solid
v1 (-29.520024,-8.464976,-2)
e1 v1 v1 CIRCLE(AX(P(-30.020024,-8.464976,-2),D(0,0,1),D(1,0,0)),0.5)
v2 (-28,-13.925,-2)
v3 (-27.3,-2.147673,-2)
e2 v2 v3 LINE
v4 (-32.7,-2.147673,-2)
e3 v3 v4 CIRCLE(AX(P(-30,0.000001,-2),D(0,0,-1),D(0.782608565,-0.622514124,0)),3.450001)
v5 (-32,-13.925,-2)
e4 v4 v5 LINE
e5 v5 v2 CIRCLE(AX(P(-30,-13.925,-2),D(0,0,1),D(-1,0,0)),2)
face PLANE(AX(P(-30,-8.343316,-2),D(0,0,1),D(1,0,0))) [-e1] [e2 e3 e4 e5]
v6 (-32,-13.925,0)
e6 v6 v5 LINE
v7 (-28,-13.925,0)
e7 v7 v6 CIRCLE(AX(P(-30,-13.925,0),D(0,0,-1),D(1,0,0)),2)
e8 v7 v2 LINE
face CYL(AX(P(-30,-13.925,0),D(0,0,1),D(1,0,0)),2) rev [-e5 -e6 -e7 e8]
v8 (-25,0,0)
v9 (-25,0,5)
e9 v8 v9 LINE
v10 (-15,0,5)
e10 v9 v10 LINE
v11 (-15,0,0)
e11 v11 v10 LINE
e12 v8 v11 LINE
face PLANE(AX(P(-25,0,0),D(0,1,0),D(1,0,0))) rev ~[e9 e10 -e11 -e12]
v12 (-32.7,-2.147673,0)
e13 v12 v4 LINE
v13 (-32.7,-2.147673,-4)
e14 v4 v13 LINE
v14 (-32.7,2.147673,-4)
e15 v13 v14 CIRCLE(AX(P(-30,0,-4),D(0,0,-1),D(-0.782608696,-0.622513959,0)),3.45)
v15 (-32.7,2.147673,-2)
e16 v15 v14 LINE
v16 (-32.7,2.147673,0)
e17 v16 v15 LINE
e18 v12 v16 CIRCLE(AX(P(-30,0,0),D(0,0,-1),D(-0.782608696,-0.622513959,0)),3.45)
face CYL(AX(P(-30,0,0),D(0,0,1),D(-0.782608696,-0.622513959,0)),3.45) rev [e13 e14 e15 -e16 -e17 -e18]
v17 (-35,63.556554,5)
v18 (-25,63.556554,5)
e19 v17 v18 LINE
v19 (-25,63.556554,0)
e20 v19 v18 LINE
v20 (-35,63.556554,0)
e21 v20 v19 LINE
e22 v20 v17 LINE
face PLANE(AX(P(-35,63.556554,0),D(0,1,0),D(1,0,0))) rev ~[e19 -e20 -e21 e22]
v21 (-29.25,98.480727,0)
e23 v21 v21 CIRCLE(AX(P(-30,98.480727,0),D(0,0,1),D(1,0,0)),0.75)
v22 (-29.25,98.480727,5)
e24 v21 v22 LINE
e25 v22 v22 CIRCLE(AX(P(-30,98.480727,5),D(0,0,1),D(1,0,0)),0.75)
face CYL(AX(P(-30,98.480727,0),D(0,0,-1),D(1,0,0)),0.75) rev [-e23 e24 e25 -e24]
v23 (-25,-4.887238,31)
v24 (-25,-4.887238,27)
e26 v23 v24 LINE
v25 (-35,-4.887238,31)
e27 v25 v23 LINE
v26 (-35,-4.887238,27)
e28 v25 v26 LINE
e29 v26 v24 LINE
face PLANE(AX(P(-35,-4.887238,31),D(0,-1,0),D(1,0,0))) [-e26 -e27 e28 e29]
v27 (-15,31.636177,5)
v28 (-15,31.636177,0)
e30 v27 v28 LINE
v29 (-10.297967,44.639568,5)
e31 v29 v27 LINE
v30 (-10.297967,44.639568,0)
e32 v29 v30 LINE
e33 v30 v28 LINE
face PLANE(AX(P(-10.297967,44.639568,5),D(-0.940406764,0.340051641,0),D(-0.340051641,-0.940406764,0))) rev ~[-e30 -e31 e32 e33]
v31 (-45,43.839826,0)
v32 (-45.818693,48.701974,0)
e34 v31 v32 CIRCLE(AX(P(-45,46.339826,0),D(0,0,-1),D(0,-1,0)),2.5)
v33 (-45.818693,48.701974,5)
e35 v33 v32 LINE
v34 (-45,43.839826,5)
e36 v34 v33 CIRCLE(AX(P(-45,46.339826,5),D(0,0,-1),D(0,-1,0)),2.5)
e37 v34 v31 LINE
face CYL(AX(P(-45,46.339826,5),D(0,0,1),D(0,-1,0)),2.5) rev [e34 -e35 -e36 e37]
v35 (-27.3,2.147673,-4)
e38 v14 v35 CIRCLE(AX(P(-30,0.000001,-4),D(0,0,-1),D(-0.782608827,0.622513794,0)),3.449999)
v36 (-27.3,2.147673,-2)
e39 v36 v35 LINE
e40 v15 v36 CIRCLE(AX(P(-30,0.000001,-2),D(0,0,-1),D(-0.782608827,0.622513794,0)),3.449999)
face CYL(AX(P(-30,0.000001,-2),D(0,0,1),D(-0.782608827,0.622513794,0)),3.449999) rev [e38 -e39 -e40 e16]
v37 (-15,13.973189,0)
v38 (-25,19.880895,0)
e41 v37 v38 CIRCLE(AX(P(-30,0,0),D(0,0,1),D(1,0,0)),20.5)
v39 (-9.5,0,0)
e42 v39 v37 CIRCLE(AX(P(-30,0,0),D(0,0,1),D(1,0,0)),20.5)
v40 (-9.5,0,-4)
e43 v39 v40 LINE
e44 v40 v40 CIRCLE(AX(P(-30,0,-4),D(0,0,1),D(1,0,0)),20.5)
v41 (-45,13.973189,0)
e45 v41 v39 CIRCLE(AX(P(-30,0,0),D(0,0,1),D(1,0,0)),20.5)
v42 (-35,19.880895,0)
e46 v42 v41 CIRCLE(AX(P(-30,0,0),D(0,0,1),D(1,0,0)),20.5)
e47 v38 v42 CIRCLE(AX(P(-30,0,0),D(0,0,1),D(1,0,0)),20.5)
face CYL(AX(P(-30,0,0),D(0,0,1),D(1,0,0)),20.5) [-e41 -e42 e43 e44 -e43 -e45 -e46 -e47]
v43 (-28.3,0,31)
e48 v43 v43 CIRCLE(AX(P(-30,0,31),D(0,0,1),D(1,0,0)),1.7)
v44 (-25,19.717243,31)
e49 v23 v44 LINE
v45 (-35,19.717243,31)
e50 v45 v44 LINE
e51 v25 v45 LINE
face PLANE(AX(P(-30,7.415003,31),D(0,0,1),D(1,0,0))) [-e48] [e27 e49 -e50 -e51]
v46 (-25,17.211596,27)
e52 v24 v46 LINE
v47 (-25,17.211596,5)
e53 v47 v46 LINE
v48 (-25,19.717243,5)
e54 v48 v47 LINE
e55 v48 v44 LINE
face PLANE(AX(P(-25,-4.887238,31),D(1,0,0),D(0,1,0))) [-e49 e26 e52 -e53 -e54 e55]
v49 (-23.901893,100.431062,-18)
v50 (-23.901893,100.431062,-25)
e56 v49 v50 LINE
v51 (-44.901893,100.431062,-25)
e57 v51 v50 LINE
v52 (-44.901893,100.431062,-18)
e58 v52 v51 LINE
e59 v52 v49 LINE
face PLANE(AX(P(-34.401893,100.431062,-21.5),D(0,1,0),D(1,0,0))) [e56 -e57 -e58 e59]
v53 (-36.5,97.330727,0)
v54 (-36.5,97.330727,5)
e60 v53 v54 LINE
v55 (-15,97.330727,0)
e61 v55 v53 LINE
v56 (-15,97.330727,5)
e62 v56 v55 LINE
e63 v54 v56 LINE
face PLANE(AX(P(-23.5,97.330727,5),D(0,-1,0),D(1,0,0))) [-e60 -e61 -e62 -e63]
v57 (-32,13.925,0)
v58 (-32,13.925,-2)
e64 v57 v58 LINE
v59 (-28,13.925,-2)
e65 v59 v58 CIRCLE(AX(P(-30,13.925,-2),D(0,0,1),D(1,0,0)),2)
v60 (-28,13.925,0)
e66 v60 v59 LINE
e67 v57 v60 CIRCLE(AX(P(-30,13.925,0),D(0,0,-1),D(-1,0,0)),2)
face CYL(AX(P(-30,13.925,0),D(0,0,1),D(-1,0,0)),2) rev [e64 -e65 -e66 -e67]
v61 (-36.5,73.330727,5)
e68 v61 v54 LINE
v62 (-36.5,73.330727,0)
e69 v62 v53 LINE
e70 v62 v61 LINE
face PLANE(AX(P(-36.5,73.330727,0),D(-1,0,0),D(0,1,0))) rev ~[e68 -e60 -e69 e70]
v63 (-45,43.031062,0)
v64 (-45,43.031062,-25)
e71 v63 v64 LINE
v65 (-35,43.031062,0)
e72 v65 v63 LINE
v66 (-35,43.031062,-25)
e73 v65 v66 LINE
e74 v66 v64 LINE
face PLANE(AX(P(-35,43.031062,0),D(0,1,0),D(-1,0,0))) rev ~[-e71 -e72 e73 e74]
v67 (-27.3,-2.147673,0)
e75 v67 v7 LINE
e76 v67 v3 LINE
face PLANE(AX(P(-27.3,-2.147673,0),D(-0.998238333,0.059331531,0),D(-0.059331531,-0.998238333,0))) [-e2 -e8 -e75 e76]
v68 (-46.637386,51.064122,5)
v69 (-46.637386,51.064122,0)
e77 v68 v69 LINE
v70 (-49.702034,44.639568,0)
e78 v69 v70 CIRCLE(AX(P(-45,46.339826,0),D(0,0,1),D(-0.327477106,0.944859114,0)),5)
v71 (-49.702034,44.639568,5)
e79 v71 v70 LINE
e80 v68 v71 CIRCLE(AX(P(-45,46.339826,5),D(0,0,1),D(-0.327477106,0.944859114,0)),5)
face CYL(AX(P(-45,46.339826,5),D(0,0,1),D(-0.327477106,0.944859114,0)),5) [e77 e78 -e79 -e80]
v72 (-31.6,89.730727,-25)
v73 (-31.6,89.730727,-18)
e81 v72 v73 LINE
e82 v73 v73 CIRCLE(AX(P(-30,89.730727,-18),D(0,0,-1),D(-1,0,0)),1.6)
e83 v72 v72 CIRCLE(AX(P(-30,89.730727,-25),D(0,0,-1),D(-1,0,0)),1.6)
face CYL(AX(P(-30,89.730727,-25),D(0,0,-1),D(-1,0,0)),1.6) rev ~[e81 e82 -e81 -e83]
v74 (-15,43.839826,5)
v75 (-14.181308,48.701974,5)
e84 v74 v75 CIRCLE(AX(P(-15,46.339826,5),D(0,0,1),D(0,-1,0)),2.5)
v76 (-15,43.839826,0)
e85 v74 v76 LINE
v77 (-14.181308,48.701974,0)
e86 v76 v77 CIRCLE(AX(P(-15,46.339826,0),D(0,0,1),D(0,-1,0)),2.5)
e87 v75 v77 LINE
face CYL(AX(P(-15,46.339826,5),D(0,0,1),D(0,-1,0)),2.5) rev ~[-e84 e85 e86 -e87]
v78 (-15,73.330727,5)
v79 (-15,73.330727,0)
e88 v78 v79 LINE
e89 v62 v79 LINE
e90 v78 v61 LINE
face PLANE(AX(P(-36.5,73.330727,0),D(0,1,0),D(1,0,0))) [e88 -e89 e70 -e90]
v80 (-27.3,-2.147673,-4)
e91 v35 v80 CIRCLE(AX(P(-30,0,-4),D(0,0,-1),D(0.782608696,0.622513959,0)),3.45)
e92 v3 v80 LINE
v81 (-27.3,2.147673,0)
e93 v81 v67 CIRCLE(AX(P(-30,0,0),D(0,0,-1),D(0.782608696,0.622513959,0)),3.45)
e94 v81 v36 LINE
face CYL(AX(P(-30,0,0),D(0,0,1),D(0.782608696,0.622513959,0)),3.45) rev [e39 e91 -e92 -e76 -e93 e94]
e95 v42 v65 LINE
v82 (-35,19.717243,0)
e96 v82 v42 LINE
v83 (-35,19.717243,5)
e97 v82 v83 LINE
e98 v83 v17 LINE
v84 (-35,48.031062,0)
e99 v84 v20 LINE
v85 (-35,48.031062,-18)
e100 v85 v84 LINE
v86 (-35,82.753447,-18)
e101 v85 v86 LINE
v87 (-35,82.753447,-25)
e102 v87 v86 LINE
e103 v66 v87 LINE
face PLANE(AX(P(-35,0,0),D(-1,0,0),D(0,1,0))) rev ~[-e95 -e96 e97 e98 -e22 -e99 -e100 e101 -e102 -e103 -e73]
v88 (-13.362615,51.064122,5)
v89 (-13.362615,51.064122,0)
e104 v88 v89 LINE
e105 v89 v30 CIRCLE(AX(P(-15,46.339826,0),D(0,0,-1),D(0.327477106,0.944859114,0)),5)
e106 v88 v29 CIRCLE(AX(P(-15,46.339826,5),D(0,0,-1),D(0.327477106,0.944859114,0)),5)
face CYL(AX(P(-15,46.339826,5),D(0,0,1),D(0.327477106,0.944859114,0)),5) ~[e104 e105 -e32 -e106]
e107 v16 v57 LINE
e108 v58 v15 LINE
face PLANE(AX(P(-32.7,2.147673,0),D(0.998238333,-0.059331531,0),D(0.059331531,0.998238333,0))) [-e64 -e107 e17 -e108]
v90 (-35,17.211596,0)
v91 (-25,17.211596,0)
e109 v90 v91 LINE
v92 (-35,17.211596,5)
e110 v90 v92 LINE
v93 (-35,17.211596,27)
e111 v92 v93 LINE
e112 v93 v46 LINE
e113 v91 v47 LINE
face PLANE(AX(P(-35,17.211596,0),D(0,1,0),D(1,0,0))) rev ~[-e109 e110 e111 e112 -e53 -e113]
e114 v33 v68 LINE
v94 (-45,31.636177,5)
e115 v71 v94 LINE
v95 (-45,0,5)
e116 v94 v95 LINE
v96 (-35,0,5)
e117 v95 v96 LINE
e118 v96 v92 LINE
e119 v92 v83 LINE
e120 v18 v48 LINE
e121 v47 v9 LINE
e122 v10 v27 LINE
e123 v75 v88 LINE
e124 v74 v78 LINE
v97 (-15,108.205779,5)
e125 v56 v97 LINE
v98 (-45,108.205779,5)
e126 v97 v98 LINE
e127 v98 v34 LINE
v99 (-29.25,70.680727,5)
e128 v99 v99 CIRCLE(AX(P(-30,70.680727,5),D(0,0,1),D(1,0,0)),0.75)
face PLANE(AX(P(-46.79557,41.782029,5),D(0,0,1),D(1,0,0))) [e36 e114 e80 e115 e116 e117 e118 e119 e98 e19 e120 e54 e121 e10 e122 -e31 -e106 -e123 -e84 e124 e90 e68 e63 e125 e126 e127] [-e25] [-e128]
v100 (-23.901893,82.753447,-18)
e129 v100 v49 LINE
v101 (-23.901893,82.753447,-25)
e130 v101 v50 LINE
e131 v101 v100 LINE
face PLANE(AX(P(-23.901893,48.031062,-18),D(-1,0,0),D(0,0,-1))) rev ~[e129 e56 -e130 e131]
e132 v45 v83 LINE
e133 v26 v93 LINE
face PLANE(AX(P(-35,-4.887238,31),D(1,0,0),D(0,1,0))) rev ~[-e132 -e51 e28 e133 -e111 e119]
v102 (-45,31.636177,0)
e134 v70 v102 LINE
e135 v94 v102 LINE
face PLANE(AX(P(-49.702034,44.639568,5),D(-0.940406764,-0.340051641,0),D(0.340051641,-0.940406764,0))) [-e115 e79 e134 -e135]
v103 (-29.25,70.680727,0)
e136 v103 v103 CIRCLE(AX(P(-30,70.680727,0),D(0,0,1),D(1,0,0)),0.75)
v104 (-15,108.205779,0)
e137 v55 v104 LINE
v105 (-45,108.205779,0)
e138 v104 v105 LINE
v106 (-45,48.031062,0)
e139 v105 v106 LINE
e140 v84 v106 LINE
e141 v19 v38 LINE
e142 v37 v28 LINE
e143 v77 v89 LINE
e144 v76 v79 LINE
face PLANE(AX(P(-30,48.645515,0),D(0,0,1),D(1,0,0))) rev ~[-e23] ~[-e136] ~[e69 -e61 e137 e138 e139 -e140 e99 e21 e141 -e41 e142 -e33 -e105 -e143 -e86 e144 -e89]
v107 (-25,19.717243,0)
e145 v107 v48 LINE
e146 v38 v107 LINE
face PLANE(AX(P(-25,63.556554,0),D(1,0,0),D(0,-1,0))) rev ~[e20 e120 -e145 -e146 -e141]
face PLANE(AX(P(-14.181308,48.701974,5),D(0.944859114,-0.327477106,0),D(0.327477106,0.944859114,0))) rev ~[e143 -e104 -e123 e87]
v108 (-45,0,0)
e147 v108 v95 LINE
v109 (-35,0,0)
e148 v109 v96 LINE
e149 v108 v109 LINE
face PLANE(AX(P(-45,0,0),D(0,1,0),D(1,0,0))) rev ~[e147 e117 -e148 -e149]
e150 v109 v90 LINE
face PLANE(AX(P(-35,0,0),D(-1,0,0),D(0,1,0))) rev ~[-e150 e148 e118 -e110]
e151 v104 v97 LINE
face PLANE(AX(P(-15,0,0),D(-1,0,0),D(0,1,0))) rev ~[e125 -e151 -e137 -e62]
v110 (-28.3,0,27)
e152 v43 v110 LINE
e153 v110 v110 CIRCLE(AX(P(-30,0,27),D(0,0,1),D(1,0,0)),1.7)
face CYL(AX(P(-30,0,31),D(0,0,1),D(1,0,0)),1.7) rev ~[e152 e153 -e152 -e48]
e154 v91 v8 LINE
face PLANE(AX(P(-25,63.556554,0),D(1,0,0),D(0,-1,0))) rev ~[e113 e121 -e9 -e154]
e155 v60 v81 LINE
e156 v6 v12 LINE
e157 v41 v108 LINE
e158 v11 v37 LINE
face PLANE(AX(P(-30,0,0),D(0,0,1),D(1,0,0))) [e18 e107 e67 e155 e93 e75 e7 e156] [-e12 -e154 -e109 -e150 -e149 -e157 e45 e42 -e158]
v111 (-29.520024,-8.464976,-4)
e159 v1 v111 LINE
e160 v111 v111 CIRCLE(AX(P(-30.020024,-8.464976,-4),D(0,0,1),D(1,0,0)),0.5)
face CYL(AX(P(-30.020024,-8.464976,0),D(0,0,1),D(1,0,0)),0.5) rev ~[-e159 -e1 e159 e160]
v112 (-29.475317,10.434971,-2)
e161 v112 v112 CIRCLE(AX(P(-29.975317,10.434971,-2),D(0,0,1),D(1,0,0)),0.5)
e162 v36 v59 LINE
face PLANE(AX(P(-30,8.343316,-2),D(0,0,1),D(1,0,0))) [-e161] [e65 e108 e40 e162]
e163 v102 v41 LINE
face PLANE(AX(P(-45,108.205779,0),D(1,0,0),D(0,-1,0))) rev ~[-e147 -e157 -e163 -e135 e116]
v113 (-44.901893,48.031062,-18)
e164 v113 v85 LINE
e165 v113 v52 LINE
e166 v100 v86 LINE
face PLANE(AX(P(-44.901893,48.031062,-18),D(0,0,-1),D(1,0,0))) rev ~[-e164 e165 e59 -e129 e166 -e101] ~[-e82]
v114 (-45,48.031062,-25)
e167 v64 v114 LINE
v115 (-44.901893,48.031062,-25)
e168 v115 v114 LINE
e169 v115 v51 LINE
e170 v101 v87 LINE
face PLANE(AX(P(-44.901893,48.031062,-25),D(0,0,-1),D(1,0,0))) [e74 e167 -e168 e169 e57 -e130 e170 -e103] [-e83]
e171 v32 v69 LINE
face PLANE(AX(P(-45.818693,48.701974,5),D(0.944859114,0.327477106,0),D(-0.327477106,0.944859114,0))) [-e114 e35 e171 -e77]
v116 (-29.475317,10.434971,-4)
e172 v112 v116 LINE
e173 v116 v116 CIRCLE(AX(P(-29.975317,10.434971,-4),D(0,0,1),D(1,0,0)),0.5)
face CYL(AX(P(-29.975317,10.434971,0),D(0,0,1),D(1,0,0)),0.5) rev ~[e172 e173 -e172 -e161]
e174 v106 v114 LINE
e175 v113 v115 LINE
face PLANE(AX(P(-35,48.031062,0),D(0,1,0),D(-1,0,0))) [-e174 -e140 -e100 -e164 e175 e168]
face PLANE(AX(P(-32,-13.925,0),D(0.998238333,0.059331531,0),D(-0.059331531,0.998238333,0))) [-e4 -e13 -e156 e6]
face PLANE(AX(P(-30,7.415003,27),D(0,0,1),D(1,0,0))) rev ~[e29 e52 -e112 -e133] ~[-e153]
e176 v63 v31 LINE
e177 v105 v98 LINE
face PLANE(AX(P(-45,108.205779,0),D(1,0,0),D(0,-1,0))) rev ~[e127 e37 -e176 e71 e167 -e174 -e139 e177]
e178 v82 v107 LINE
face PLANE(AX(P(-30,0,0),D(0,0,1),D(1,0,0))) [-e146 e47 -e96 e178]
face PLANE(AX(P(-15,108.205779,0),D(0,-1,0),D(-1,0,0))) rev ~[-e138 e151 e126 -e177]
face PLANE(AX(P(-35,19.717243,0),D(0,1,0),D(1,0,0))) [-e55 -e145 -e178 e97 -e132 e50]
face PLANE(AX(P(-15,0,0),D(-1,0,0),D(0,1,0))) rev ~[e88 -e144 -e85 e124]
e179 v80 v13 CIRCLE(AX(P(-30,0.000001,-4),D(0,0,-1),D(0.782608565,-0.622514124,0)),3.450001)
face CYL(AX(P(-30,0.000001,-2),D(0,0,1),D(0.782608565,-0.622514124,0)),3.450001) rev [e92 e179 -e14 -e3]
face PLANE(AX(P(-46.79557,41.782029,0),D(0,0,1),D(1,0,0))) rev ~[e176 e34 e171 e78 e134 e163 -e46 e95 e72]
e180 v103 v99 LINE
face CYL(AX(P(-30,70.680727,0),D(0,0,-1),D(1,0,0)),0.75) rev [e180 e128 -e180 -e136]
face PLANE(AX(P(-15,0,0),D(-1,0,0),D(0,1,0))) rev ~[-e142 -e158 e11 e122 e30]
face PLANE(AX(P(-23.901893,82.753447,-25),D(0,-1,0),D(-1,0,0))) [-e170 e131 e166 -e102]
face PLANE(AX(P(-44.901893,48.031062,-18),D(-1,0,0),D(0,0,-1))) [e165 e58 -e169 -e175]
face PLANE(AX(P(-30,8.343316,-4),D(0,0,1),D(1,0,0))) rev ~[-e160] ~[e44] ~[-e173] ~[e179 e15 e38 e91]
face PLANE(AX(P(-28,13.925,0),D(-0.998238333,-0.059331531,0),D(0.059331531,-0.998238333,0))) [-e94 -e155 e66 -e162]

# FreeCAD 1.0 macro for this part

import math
import FreeCAD as App
import Part
import Sketcher

V = App.Vector

doc = App.newDocument("Part")
body = doc.addObject("PartDesign::Body", "Body")

sketch1 = body.newObject("Sketcher::SketchObject", "Sketch")
sketch1.AttachmentSupport = (doc.getObject("XY_Plane"), [""])
sketch1.MapMode = "FlatFace"
sketch1.addGeometry(Part.Circle(V(-30, 0, 0), V(0, 0, 1), 20.5), False)
sketch1.addGeometry(Part.ArcOfCircle(Part.Circle(V(-30, -13.925, 0), V(0, 0, 1), 2), math.radians(180), math.radians(360)), False)
sketch1.addGeometry(Part.LineSegment(V(-32, -13.925, 0), V(-32.7, -2.147673, 0)), False)
sketch1.addGeometry(Part.ArcOfCircle(Part.Circle(V(-30, 0, 0), V(0, 0, 1), 3.45), math.radians(141.50005), math.radians(218.49995)), False)
sketch1.addGeometry(Part.LineSegment(V(-32.7, 2.147673, 0), V(-32, 13.925, 0)), False)
sketch1.addGeometry(Part.ArcOfCircle(Part.Circle(V(-30, 13.925, 0), V(0, 0, 1), 2), math.radians(0), math.radians(180)), False)
sketch1.addGeometry(Part.LineSegment(V(-28, 13.925, 0), V(-27.3, 2.147673, 0)), False)
sketch1.addGeometry(Part.ArcOfCircle(Part.Circle(V(-30, 0, 0), V(0, 0, 1), 3.45), math.radians(-38.49995), math.radians(38.49995)), False)
sketch1.addGeometry(Part.LineSegment(V(-27.3, -2.147673, 0), V(-28, -13.925, 0)), False)
sketch1.addConstraint(Sketcher.Constraint("Coincident", 1, 1, 2, 1))
sketch1.addConstraint(Sketcher.Constraint("Coincident", 2, 2, 3, 2))
sketch1.addConstraint(Sketcher.Constraint("Coincident", 3, 1, 4, 1))
sketch1.addConstraint(Sketcher.Constraint("Coincident", 4, 2, 5, 2))
sketch1.addConstraint(Sketcher.Constraint("Coincident", 5, 1, 6, 1))
sketch1.addConstraint(Sketcher.Constraint("Coincident", 6, 2, 7, 2))
sketch1.addConstraint(Sketcher.Constraint("Coincident", 7, 1, 8, 1))
sketch1.addConstraint(Sketcher.Constraint("Coincident", 8, 2, 1, 2))
sketch1.addConstraint(Sketcher.Constraint("Coincident", 3, 3, 0, 3))
sketch1.addConstraint(Sketcher.Constraint("Coincident", 7, 3, 0, 3))
sketch1.addConstraint(Sketcher.Constraint("Equal", 1, 5))
sketch1.addConstraint(Sketcher.Constraint("Equal", 3, 7))
sketch1.addConstraint(Sketcher.Constraint("Symmetric", 1, 3, 5, 3, -1))
sketch1.addConstraint(Sketcher.Constraint("Symmetric", 2, 2, 3, 1, -1))
sketch1.addConstraint(Sketcher.Constraint("Parallel", 2, 6))
sketch1.addConstraint(Sketcher.Constraint("Parallel", 4, 8))
sketch1.addConstraint(Sketcher.Constraint("Horizontal", 5, 3, 4, 2))
sketch1.addConstraint(Sketcher.Constraint("Horizontal", 4, 2, 5, 1))
sketch1.addConstraint(Sketcher.Constraint("Horizontal", 3, 1, 6, 2))
sketch1.addConstraint(Sketcher.Constraint("Horizontal", 2, 2, 7, 1))
sketch1.addConstraint(Sketcher.Constraint("Horizontal", 1, 1, 8, 2))
sketch1.addConstraint(Sketcher.Constraint("Diameter", 0, 41.0))
sketch1.addConstraint(Sketcher.Constraint("Radius", 1, 2.0))
sketch1.addConstraint(Sketcher.Constraint("Radius", 3, 3.45))
sketch1.addConstraint(Sketcher.Constraint("DistanceX", 0, 3, -1, 1, 30.0))
sketch1.addConstraint(Sketcher.Constraint("DistanceX", 2, 2, -1, 1, 32.7))
sketch1.addConstraint(Sketcher.Constraint("DistanceY", 1, 3, 5, 3, 27.85))
pad1 = body.newObject("PartDesign::Pad", "Pad")
pad1.Profile = sketch1
pad1.Length = 4
pad1.Reversed = True

sketch2 = body.newObject("Sketcher::SketchObject", "Sketch001")
sketch2.AttachmentSupport = (doc.getObject("XY_Plane"), [""])
sketch2.MapMode = "FlatFace"
sketch2.AttachmentOffset = App.Placement(V(0, 0, -2), App.Rotation())
sketch2.addGeometry(Part.LineSegment(V(-32.7, 2.147673, 0), V(-32, 13.925, 0)), False)
sketch2.addGeometry(Part.ArcOfCircle(Part.Circle(V(-30, 13.925, 0), V(0, 0, 1), 2), math.radians(0), math.radians(180)), False)
sketch2.addGeometry(Part.LineSegment(V(-28, 13.925, 0), V(-27.3, 2.147673, 0)), False)
sketch2.addGeometry(Part.ArcOfCircle(Part.Circle(V(-30, 0.000001, 0), V(0, 0, 1), 3.449999), math.radians(38.499938), math.radians(141.500062)), False)
sketch2.addGeometry(Part.LineSegment(V(-32, -13.925, 0), V(-32.7, -2.147673, 0)), False)
sketch2.addGeometry(Part.ArcOfCircle(Part.Circle(V(-30, 0.000001, 0), V(0, 0, 1), 3.450001), math.radians(-141.500038), math.radians(-38.499962)), False)
sketch2.addGeometry(Part.LineSegment(V(-27.3, -2.147673, 0), V(-28, -13.925, 0)), False)
sketch2.addGeometry(Part.ArcOfCircle(Part.Circle(V(-30, -13.925, 0), V(0, 0, 1), 2), math.radians(180), math.radians(360)), False)
sketch2.addConstraint(Sketcher.Constraint("Coincident", 0, 2, 1, 2))
sketch2.addConstraint(Sketcher.Constraint("Coincident", 1, 1, 2, 1))
sketch2.addConstraint(Sketcher.Constraint("Coincident", 2, 2, 3, 1))
sketch2.addConstraint(Sketcher.Constraint("Coincident", 3, 2, 0, 1))
sketch2.addConstraint(Sketcher.Constraint("Coincident", 4, 2, 5, 1))
sketch2.addConstraint(Sketcher.Constraint("Coincident", 5, 2, 6, 1))
sketch2.addConstraint(Sketcher.Constraint("Coincident", 6, 2, 7, 2))
sketch2.addConstraint(Sketcher.Constraint("Coincident", 7, 1, 4, 1))
sketch2.addConstraint(Sketcher.Constraint("Coincident", 5, 3, 3, 3))
sketch2.addConstraint(Sketcher.Constraint("Equal", 3, 5))
sketch2.addConstraint(Sketcher.Constraint("Equal", 1, 7))
sketch2.addConstraint(Sketcher.Constraint("Symmetric", 1, 3, 7, 3, -1))
sketch2.addConstraint(Sketcher.Constraint("Symmetric", 3, 2, 4, 2, -1))
sketch2.addConstraint(Sketcher.Constraint("Parallel", 2, 4))
sketch2.addConstraint(Sketcher.Constraint("Parallel", 0, 6))
sketch2.addConstraint(Sketcher.Constraint("Horizontal", 1, 3, 0, 2))
sketch2.addConstraint(Sketcher.Constraint("Horizontal", 0, 2, 1, 1))
sketch2.addConstraint(Sketcher.Constraint("Horizontal", 2, 2, 3, 2))
sketch2.addConstraint(Sketcher.Constraint("Horizontal", 4, 2, 5, 2))
sketch2.addConstraint(Sketcher.Constraint("Horizontal", 7, 3, 6, 2))
sketch2.addConstraint(Sketcher.Constraint("Radius", 1, 2.0))
sketch2.addConstraint(Sketcher.Constraint("Radius", 3, 3.449999))
sketch2.addConstraint(Sketcher.Constraint("DistanceX", 1, 3, -1, 1, 30.0))
sketch2.addConstraint(Sketcher.Constraint("DistanceX", 2, 2, -1, 1, 27.3))
sketch2.addConstraint(Sketcher.Constraint("DistanceY", 7, 3, 1, 3, 27.85))
pad2 = body.newObject("PartDesign::Pad", "Pad001")
pad2.Profile = sketch2
pad2.Length = 2
pad2.Reversed = True

sketch3 = body.newObject("Sketcher::SketchObject", "Sketch002")
sketch3.AttachmentSupport = (doc.getObject("XY_Plane"), [""])
sketch3.MapMode = "FlatFace"
sketch3.addGeometry(Part.LineSegment(V(-45, 0, 0), V(-35, 0, 0)), False)
sketch3.addGeometry(Part.LineSegment(V(-35, 0, 0), V(-35, 63.556554, 0)), False)
sketch3.addGeometry(Part.LineSegment(V(-35, 63.556554, 0), V(-25, 63.556554, 0)), False)
sketch3.addGeometry(Part.LineSegment(V(-25, 63.556554, 0), V(-25, 0, 0)), False)
sketch3.addGeometry(Part.LineSegment(V(-25, 0, 0), V(-15, 0, 0)), False)
sketch3.addGeometry(Part.LineSegment(V(-15, 0, 0), V(-15, 108.205779, 0)), False)
sketch3.addGeometry(Part.LineSegment(V(-15, 108.205779, 0), V(-45, 108.205779, 0)), False)
sketch3.addGeometry(Part.LineSegment(V(-45, 108.205779, 0), V(-45, 0, 0)), False)
sketch3.addGeometry(Part.Circle(V(-30, 70.680727, 0), V(0, 0, 1), 0.75), False)
sketch3.addGeometry(Part.LineSegment(V(-23.5, 73.330727, 0), V(-36.5, 73.330727, 0)), False)
sketch3.addGeometry(Part.LineSegment(V(-36.5, 73.330727, 0), V(-36.5, 97.330727, 0)), False)
sketch3.addGeometry(Part.LineSegment(V(-36.5, 97.330727, 0), V(-23.5, 97.330727, 0)), False)
sketch3.addGeometry(Part.LineSegment(V(-23.5, 97.330727, 0), V(-23.5, 73.330727, 0)), False)
sketch3.addGeometry(Part.Circle(V(-30, 98.480727, 0), V(0, 0, 1), 0.75), False)
sketch3.addConstraint(Sketcher.Constraint("Coincident", 0, 2, 1, 1))
sketch3.addConstraint(Sketcher.Constraint("Coincident", 1, 2, 2, 1))
sketch3.addConstraint(Sketcher.Constraint("Coincident", 2, 2, 3, 1))
sketch3.addConstraint(Sketcher.Constraint("Coincident", 3, 2, 4, 1))
sketch3.addConstraint(Sketcher.Constraint("Coincident", 4, 2, 5, 1))
sketch3.addConstraint(Sketcher.Constraint("Coincident", 5, 2, 6, 1))
sketch3.addConstraint(Sketcher.Constraint("Coincident", 6, 2, 7, 1))
sketch3.addConstraint(Sketcher.Constraint("Coincident", 7, 2, 0, 1))
sketch3.addConstraint(Sketcher.Constraint("Coincident", 9, 2, 10, 1))
sketch3.addConstraint(Sketcher.Constraint("Coincident", 10, 2, 11, 1))
sketch3.addConstraint(Sketcher.Constraint("Coincident", 11, 2, 12, 1))
sketch3.addConstraint(Sketcher.Constraint("Coincident", 12, 2, 9, 1))
sketch3.addConstraint(Sketcher.Constraint("Horizontal", 0))
sketch3.addConstraint(Sketcher.Constraint("Vertical", 1))
sketch3.addConstraint(Sketcher.Constraint("Horizontal", 2))
sketch3.addConstraint(Sketcher.Constraint("Vertical", 3))
sketch3.addConstraint(Sketcher.Constraint("Horizontal", 4))
sketch3.addConstraint(Sketcher.Constraint("Vertical", 5))
sketch3.addConstraint(Sketcher.Constraint("Horizontal", 6))
sketch3.addConstraint(Sketcher.Constraint("Vertical", 7))
sketch3.addConstraint(Sketcher.Constraint("Horizontal", 9))
sketch3.addConstraint(Sketcher.Constraint("Vertical", 10))
sketch3.addConstraint(Sketcher.Constraint("Horizontal", 11))
sketch3.addConstraint(Sketcher.Constraint("Vertical", 12))
sketch3.addConstraint(Sketcher.Constraint("Equal", 8, 13))
sketch3.addConstraint(Sketcher.Constraint("PointOnObject", 0, 2, -1))
sketch3.addConstraint(Sketcher.Constraint("PointOnObject", 3, 2, -1))
sketch3.addConstraint(Sketcher.Constraint("Vertical", 8, 3, 13, 3))
sketch3.addConstraint(Sketcher.Constraint("Equal", 0, 2))
sketch3.addConstraint(Sketcher.Constraint("Equal", 2, 4))
sketch3.addConstraint(Sketcher.Constraint("Diameter", 8, 1.5))
sketch3.addConstraint(Sketcher.Constraint("DistanceX", 0, 1, 0, 2, 10.0))
sketch3.addConstraint(Sketcher.Constraint("DistanceX", 9, 2, 9, 1, 13.0))
sketch3.addConstraint(Sketcher.Constraint("DistanceY", 10, 1, 10, 2, 24.0))
sketch3.addConstraint(Sketcher.Constraint("DistanceX", 8, 3, -1, 1, 30.0))
sketch3.addConstraint(Sketcher.Constraint("DistanceX", 0, 2, -1, 1, 35.0))
sketch3.addConstraint(Sketcher.Constraint("DistanceX", 9, 2, -1, 1, 36.5))
sketch3.addConstraint(Sketcher.Constraint("DistanceY", 8, 3, 13, 3, 27.8))
sketch3.addConstraint(Sketcher.Constraint("DistanceY", 8, 3, 9, 2, 2.65))
sketch3.addConstraint(Sketcher.Constraint("DistanceY", 5, 1, 5, 2, 108.205779))
sketch3.addConstraint(Sketcher.Constraint("DistanceY", 1, 1, 1, 2, 63.556554))
sketch3.addConstraint(Sketcher.Constraint("DistanceY", -1, 1, 8, 3, 70.680727))
pad3 = body.newObject("PartDesign::Pad", "Pad002")
pad3.Profile = sketch3
pad3.Length = 5

sketch4 = body.newObject("Sketcher::SketchObject", "Sketch003")
sketch4.AttachmentSupport = (doc.getObject("XY_Plane"), [""])
sketch4.MapMode = "FlatFace"
sketch4.addGeometry(Part.LineSegment(V(-35, 48.031062, 0), V(-35, 43.031062, 0)), False)
sketch4.addGeometry(Part.LineSegment(V(-35, 43.031062, 0), V(-45, 43.031062, 0)), False)
sketch4.addGeometry(Part.LineSegment(V(-45, 43.031062, 0), V(-45, 48.031062, 0)), False)
sketch4.addGeometry(Part.LineSegment(V(-45, 48.031062, 0), V(-35, 48.031062, 0)), False)
sketch4.addConstraint(Sketcher.Constraint("Coincident", 0, 2, 1, 1))
sketch4.addConstraint(Sketcher.Constraint("Coincident", 1, 2, 2, 1))
sketch4.addConstraint(Sketcher.Constraint("Coincident", 2, 2, 3, 1))
sketch4.addConstraint(Sketcher.Constraint("Coincident", 3, 2, 0, 1))
sketch4.addConstraint(Sketcher.Constraint("Vertical", 0))
sketch4.addConstraint(Sketcher.Constraint("Horizontal", 1))
sketch4.addConstraint(Sketcher.Constraint("Vertical", 2))
sketch4.addConstraint(Sketcher.Constraint("Horizontal", 3))
sketch4.addConstraint(Sketcher.Constraint("DistanceX", 1, 2, 1, 1, 10.0))
sketch4.addConstraint(Sketcher.Constraint("DistanceY", 0, 2, 0, 1, 5.0))
sketch4.addConstraint(Sketcher.Constraint("DistanceX", 0, 2, -1, 1, 35.0))
sketch4.addConstraint(Sketcher.Constraint("DistanceY", -1, 1, 0, 2, 43.031062))
pad4 = body.newObject("PartDesign::Pad", "Pad003")
pad4.Profile = sketch4
pad4.Length = 25
pad4.Reversed = True

sketch5 = body.newObject("Sketcher::SketchObject", "Sketch004")
sketch5.AttachmentSupport = (doc.getObject("XZ_Plane"), [""])
sketch5.MapMode = "FlatFace"
sketch5.AttachmentOffset = App.Placement(V(0, 0, -48.031062), App.Rotation())
sketch5.addGeometry(Part.LineSegment(V(-44.901893, -25, 0), V(-44.901893, -18, 0)), False)
sketch5.addGeometry(Part.LineSegment(V(-44.901893, -18, 0), V(-23.901893, -18, 0)), False)
sketch5.addGeometry(Part.LineSegment(V(-23.901893, -18, 0), V(-23.901893, -25, 0)), False)
sketch5.addGeometry(Part.LineSegment(V(-23.901893, -25, 0), V(-44.901893, -25, 0)), False)
sketch5.addConstraint(Sketcher.Constraint("Coincident", 0, 2, 1, 1))
sketch5.addConstraint(Sketcher.Constraint("Coincident", 1, 2, 2, 1))
sketch5.addConstraint(Sketcher.Constraint("Coincident", 2, 2, 3, 1))
sketch5.addConstraint(Sketcher.Constraint("Coincident", 3, 2, 0, 1))
sketch5.addConstraint(Sketcher.Constraint("Vertical", 0))
sketch5.addConstraint(Sketcher.Constraint("Horizontal", 1))
sketch5.addConstraint(Sketcher.Constraint("Vertical", 2))
sketch5.addConstraint(Sketcher.Constraint("Horizontal", 3))
sketch5.addConstraint(Sketcher.Constraint("DistanceX", 1, 1, 1, 2, 21.0))
sketch5.addConstraint(Sketcher.Constraint("DistanceY", 0, 1, 0, 2, 7.0))
sketch5.addConstraint(Sketcher.Constraint("DistanceY", 0, 2, -1, 1, 18.0))
sketch5.addConstraint(Sketcher.Constraint("DistanceX", 0, 2, -1, 1, 44.901893))
pad5 = body.newObject("PartDesign::Pad", "Pad004")
pad5.Profile = sketch5
pad5.Length = 52.4
pad5.Reversed = True

sketch6 = body.newObject("Sketcher::SketchObject", "Sketch005")
sketch6.AttachmentSupport = (doc.getObject("XY_Plane"), [""])
sketch6.MapMode = "FlatFace"
sketch6.AttachmentOffset = App.Placement(V(0, 0, -25), App.Rotation())
sketch6.addGeometry(Part.Circle(V(-30, 89.730727, 0), V(0, 0, 1), 1.6), False)
sketch6.addConstraint(Sketcher.Constraint("Diameter", 0, 3.2))
sketch6.addConstraint(Sketcher.Constraint("DistanceX", 0, 3, -1, 1, 30.0))
sketch6.addConstraint(Sketcher.Constraint("DistanceY", -1, 1, 0, 3, 89.730727))
pocket1 = body.newObject("PartDesign::Pocket", "Pocket")
pocket1.Profile = sketch6
pocket1.Length = 52.4
pocket1.Reversed = True

sketch7 = body.newObject("Sketcher::SketchObject", "Sketch006")
sketch7.AttachmentSupport = (doc.getObject("XY_Plane"), [""])
sketch7.MapMode = "FlatFace"
sketch7.addGeometry(Part.Circle(V(-29.975317, 10.434971, 0), V(0, 0, 1), 0.5), False)
sketch7.addGeometry(Part.Circle(V(-30.020024, -8.464976, 0), V(0, 0, 1), 0.5), False)
sketch7.addConstraint(Sketcher.Constraint("Equal", 0, 1))
sketch7.addConstraint(Sketcher.Constraint("Diameter", 0, 1.0))
sketch7.addConstraint(Sketcher.Constraint("DistanceY", -1, 1, 0, 3, 10.434971))
sketch7.addConstraint(Sketcher.Constraint("DistanceX", 0, 3, -1, 1, 29.975317))
sketch7.addConstraint(Sketcher.Constraint("DistanceX", 1, 3, -1, 1, 30.020024))
sketch7.addConstraint(Sketcher.Constraint("DistanceY", 1, 3, -1, 1, 8.464976))
pocket2 = body.newObject("PartDesign::Pocket", "Pocket001")
pocket2.Profile = sketch7
pocket2.Length = 10

sketch8 = body.newObject("Sketcher::SketchObject", "Sketch007")
sketch8.AttachmentSupport = (doc.getObject("XY_Plane"), [""])
sketch8.MapMode = "FlatFace"
sketch8.AttachmentOffset = App.Placement(V(0, 0, 5), App.Rotation())
sketch8.addGeometry(Part.LineSegment(V(-23.5, 97.330727, 0), V(-23.5, 73.330727, 0)), False)
sketch8.addGeometry(Part.LineSegment(V(-23.5, 73.330727, 0), V(-15, 73.330727, 0)), False)
sketch8.addGeometry(Part.LineSegment(V(-15, 73.330727, 0), V(-15, 97.330727, 0)), False)
sketch8.addGeometry(Part.LineSegment(V(-15, 97.330727, 0), V(-23.5, 97.330727, 0)), False)
sketch8.addConstraint(Sketcher.Constraint("Coincident", 0, 2, 1, 1))
sketch8.addConstraint(Sketcher.Constraint("Coincident", 1, 2, 2, 1))
sketch8.addConstraint(Sketcher.Constraint("Coincident", 2, 2, 3, 1))
sketch8.addConstraint(Sketcher.Constraint("Coincident", 3, 2, 0, 1))
sketch8.addConstraint(Sketcher.Constraint("Vertical", 0))
sketch8.addConstraint(Sketcher.Constraint("Horizontal", 1))
sketch8.addConstraint(Sketcher.Constraint("Vertical", 2))
sketch8.addConstraint(Sketcher.Constraint("Horizontal", 3))
sketch8.addConstraint(Sketcher.Constraint("DistanceY", 0, 2, 0, 1, 24.0))
sketch8.addConstraint(Sketcher.Constraint("DistanceX", 1, 1, 1, 2, 8.5))
sketch8.addConstraint(Sketcher.Constraint("DistanceX", 1, 2, -1, 1, 15.0))
sketch8.addConstraint(Sketcher.Constraint("DistanceY", -1, 1, 0, 2, 73.330727))
pocket3 = body.newObject("PartDesign::Pocket", "Pocket002")
pocket3.Profile = sketch8
pocket3.Length = 10

sketch9 = body.newObject("Sketcher::SketchObject", "Sketch008")
sketch9.AttachmentSupport = (doc.getObject("XY_Plane"), [""])
sketch9.MapMode = "FlatFace"
sketch9.addGeometry(Part.LineSegment(V(-35, 19.717243, 0), V(-35, 17.211596, 0)), False)
sketch9.addGeometry(Part.LineSegment(V(-35, 17.211596, 0), V(-25, 17.211596, 0)), False)
sketch9.addGeometry(Part.LineSegment(V(-25, 17.211596, 0), V(-25, 19.717243, 0)), False)
sketch9.addGeometry(Part.LineSegment(V(-25, 19.717243, 0), V(-35, 19.717243, 0)), False)
sketch9.addConstraint(Sketcher.Constraint("Coincident", 0, 2, 1, 1))
sketch9.addConstraint(Sketcher.Constraint("Coincident", 1, 2, 2, 1))
sketch9.addConstraint(Sketcher.Constraint("Coincident", 2, 2, 3, 1))
sketch9.addConstraint(Sketcher.Constraint("Coincident", 3, 2, 0, 1))
sketch9.addConstraint(Sketcher.Constraint("Vertical", 0))
sketch9.addConstraint(Sketcher.Constraint("Horizontal", 1))
sketch9.addConstraint(Sketcher.Constraint("Vertical", 2))
sketch9.addConstraint(Sketcher.Constraint("Horizontal", 3))
sketch9.addConstraint(Sketcher.Constraint("DistanceX", 1, 1, 1, 2, 10.0))
sketch9.addConstraint(Sketcher.Constraint("DistanceX", 0, 2, -1, 1, 35.0))
sketch9.addConstraint(Sketcher.Constraint("DistanceY", 0, 2, 0, 1, 2.505648))
sketch9.addConstraint(Sketcher.Constraint("DistanceY", -1, 1, 0, 2, 17.211596))
pad6 = body.newObject("PartDesign::Pad", "Pad005")
pad6.Profile = sketch9
pad6.Length = 31

sketch10 = body.newObject("Sketcher::SketchObject", "Sketch009")
sketch10.AttachmentSupport = (doc.getObject("XY_Plane"), [""])
sketch10.MapMode = "FlatFace"
sketch10.AttachmentOffset = App.Placement(V(0, 0, 31), App.Rotation())
sketch10.addGeometry(Part.LineSegment(V(-35, 19.717243, 0), V(-35, -4.887238, 0)), False)
sketch10.addGeometry(Part.LineSegment(V(-35, -4.887238, 0), V(-25, -4.887238, 0)), False)
sketch10.addGeometry(Part.LineSegment(V(-25, -4.887238, 0), V(-25, 19.717243, 0)), False)
sketch10.addGeometry(Part.LineSegment(V(-25, 19.717243, 0), V(-35, 19.717243, 0)), False)
sketch10.addGeometry(Part.Circle(V(-30, 0, 0), V(0, 0, 1), 1.7), False)
sketch10.addConstraint(Sketcher.Constraint("Coincident", 0, 2, 1, 1))
sketch10.addConstraint(Sketcher.Constraint("Coincident", 1, 2, 2, 1))
sketch10.addConstraint(Sketcher.Constraint("Coincident", 2, 2, 3, 1))
sketch10.addConstraint(Sketcher.Constraint("Coincident", 3, 2, 0, 1))
sketch10.addConstraint(Sketcher.Constraint("Vertical", 0))
sketch10.addConstraint(Sketcher.Constraint("Horizontal", 1))
sketch10.addConstraint(Sketcher.Constraint("Vertical", 2))
sketch10.addConstraint(Sketcher.Constraint("Horizontal", 3))
sketch10.addConstraint(Sketcher.Constraint("PointOnObject", 4, 3, -1))
sketch10.addConstraint(Sketcher.Constraint("Diameter", 4, 3.4))
sketch10.addConstraint(Sketcher.Constraint("DistanceX", 1, 1, 1, 2, 10.0))
sketch10.addConstraint(Sketcher.Constraint("DistanceX", 4, 3, -1, 1, 30.0))
sketch10.addConstraint(Sketcher.Constraint("DistanceX", 0, 2, -1, 1, 35.0))
sketch10.addConstraint(Sketcher.Constraint("DistanceY", 0, 2, 0, 1, 24.604481))
sketch10.addConstraint(Sketcher.Constraint("DistanceY", 0, 2, -1, 1, 4.887238))
pad7 = body.newObject("PartDesign::Pad", "Pad006")
pad7.Profile = sketch10
pad7.Length = 4
pad7.Reversed = True

sketch11 = body.newObject("Sketcher::SketchObject", "Sketch010")
sketch11.AttachmentSupport = (doc.getObject("XY_Plane"), [""])
sketch11.MapMode = "FlatFace"
sketch11.AttachmentOffset = App.Placement(V(0, 0, 5), App.Rotation())
sketch11.addGeometry(Part.LineSegment(V(-13.362615, 51.064122, 0), V(-14.181308, 48.701974, 0)), False)
sketch11.addGeometry(Part.ArcOfCircle(Part.Circle(V(-15, 46.339826, 0), V(0, 0, 1), 2.5), math.radians(-90), math.radians(70.884283)), False)
sketch11.addGeometry(Part.LineSegment(V(-15, 43.839826, 0), V(-15, 31.636177, 0)), False)
sketch11.addGeometry(Part.LineSegment(V(-15, 31.636177, 0), V(-10.297967, 44.639568, 0)), False)
sketch11.addGeometry(Part.ArcOfCircle(Part.Circle(V(-15, 46.339826, 0), V(0, 0, 1), 5), math.radians(-19.88002), math.radians(70.884283)), False)
sketch11.addGeometry(Part.LineSegment(V(-49.702034, 44.639568, 0), V(-45, 31.636177, 0)), False)
sketch11.addGeometry(Part.LineSegment(V(-45, 31.636177, 0), V(-45, 43.839826, 0)), False)
sketch11.addGeometry(Part.ArcOfCircle(Part.Circle(V(-45, 46.339826, 0), V(0, 0, 1), 2.5), math.radians(109.115717), math.radians(270)), False)
sketch11.addGeometry(Part.LineSegment(V(-45.818693, 48.701974, 0), V(-46.637386, 51.064122, 0)), False)
sketch11.addGeometry(Part.ArcOfCircle(Part.Circle(V(-45, 46.339826, 0), V(0, 0, 1), 5), math.radians(109.115717), math.radians(199.88002)), False)
sketch11.addConstraint(Sketcher.Constraint("Coincident", 0, 2, 1, 2))
sketch11.addConstraint(Sketcher.Constraint("Coincident", 1, 1, 2, 1))
sketch11.addConstraint(Sketcher.Constraint("Coincident", 2, 2, 3, 1))
sketch11.addConstraint(Sketcher.Constraint("Tangent", 3, 2, 4, 1))
sketch11.addConstraint(Sketcher.Constraint("Coincident", 4, 2, 0, 1))
sketch11.addConstraint(Sketcher.Constraint("Coincident", 5, 2, 6, 1))
sketch11.addConstraint(Sketcher.Constraint("Coincident", 6, 2, 7, 2))
sketch11.addConstraint(Sketcher.Constraint("Coincident", 7, 1, 8, 1))
sketch11.addConstraint(Sketcher.Constraint("Coincident", 8, 2, 9, 1))
sketch11.addConstraint(Sketcher.Constraint("Tangent", 9, 2, 5, 1))
sketch11.addConstraint(Sketcher.Constraint("Vertical", 2))
sketch11.addConstraint(Sketcher.Constraint("Vertical", 6))
sketch11.addConstraint(Sketcher.Constraint("Coincident", 4, 3, 1, 3))
sketch11.addConstraint(Sketcher.Constraint("Coincident", 9, 3, 7, 3))
sketch11.addConstraint(Sketcher.Constraint("Equal", 1, 7))
sketch11.addConstraint(Sketcher.Constraint("Equal", 4, 9))
sketch11.addConstraint(Sketcher.Constraint("Horizontal", 4, 3, 7, 3))
sketch11.addConstraint(Sketcher.Constraint("Horizontal", 2, 2, 5, 2))
sketch11.addConstraint(Sketcher.Constraint("Horizontal", 0, 2, 7, 1))
sketch11.addConstraint(Sketcher.Constraint("Horizontal", 4, 2, 8, 2))
sketch11.addConstraint(Sketcher.Constraint("Horizontal", 3, 2, 9, 2))
sketch11.addConstraint(Sketcher.Constraint("Vertical", 4, 3, 1, 1))
sketch11.addConstraint(Sketcher.Constraint("Radius", 4, 5.0))
sketch11.addConstraint(Sketcher.Constraint("Radius", 1, 2.5))
sketch11.addConstraint(Sketcher.Constraint("DistanceX", 1, 3, -1, 1, 15.0))
sketch11.addConstraint(Sketcher.Constraint("DistanceX", 7, 3, -1, 1, 45.0))
sketch11.addConstraint(Sketcher.Constraint("DistanceY", 2, 2, 2, 1, 12.203649))
sketch11.addConstraint(Sketcher.Constraint("DistanceY", -1, 1, 4, 2, 51.064122))
sketch11.addConstraint(Sketcher.Constraint("DistanceX", 0, 2, 3, 2, 3.883341))
sketch11.addConstraint(Sketcher.Constraint("DistanceX", 4, 2, 3, 2, 3.064648))
pad8 = body.newObject("PartDesign::Pad", "Pad007")
pad8.Profile = sketch11
pad8.Length = 5
pad8.Reversed = True

sketch12 = body.newObject("Sketcher::SketchObject", "Sketch011")
sketch12.AttachmentSupport = (doc.getObject("XY_Plane"), [""])
sketch12.MapMode = "FlatFace"
sketch12.AttachmentOffset = App.Placement(V(0, 0, -25), App.Rotation())
sketch12.addGeometry(Part.LineSegment(V(-23.901893, 82.753447, 0), V(-23.901893, 48.031062, 0)), False)
sketch12.addGeometry(Part.LineSegment(V(-23.901893, 48.031062, 0), V(-35, 48.031062, 0)), False)
sketch12.addGeometry(Part.LineSegment(V(-35, 48.031062, 0), V(-35, 82.753447, 0)), False)
sketch12.addGeometry(Part.LineSegment(V(-35, 82.753447, 0), V(-23.901893, 82.753447, 0)), False)
sketch12.addConstraint(Sketcher.Constraint("Coincident", 0, 2, 1, 1))
sketch12.addConstraint(Sketcher.Constraint("Coincident", 1, 2, 2, 1))
sketch12.addConstraint(Sketcher.Constraint("Coincident", 2, 2, 3, 1))
sketch12.addConstraint(Sketcher.Constraint("Coincident", 3, 2, 0, 1))
sketch12.addConstraint(Sketcher.Constraint("Vertical", 0))
sketch12.addConstraint(Sketcher.Constraint("Horizontal", 1))
sketch12.addConstraint(Sketcher.Constraint("Vertical", 2))
sketch12.addConstraint(Sketcher.Constraint("Horizontal", 3))
sketch12.addConstraint(Sketcher.Constraint("DistanceX", 1, 2, -1, 1, 35.0))
sketch12.addConstraint(Sketcher.Constraint("DistanceX", 1, 2, 1, 1, 11.098108))
sketch12.addConstraint(Sketcher.Constraint("DistanceY", 0, 2, 0, 1, 34.722385))
sketch12.addConstraint(Sketcher.Constraint("DistanceY", -1, 1, 0, 2, 48.031062))
pocket4 = body.newObject("PartDesign::Pocket", "Pocket003")
pocket4.Profile = sketch12
pocket4.Length = 10
pocket4.Reversed = True

doc.recompute()
